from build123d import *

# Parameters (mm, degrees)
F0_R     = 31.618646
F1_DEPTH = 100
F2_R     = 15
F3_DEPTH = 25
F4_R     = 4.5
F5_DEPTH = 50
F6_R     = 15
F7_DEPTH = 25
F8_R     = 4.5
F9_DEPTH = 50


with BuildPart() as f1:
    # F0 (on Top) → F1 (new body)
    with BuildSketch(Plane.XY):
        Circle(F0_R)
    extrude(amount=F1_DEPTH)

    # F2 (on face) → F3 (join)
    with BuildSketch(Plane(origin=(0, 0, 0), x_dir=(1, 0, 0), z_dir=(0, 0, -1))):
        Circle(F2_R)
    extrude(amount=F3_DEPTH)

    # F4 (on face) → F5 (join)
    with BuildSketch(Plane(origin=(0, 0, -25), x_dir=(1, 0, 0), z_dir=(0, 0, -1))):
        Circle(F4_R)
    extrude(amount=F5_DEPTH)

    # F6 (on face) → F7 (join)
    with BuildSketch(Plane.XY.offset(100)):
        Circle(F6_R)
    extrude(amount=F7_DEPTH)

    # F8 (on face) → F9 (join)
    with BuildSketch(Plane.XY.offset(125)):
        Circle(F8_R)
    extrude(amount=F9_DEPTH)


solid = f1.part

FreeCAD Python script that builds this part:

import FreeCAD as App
import Part
import Sketcher
from FreeCAD import Vector

doc = App.newDocument("Part")
body = doc.addObject("PartDesign::Body", "Body")

# Sketch on XY plane
sketch1 = body.newObject("Sketcher::SketchObject", "Sketch")
sketch1.AttachmentSupport = (doc.getObject("XY_Plane"), [""])
sketch1.MapMode = "FlatFace"
sketch1.addGeometry(Part.Circle(Vector(0, 0, 0), Vector(0, 0, 1), 32), False)
sketch1.addConstraint([
    Sketcher.Constraint("Coincident", 0, 3, -1, 1),
    Sketcher.Constraint("Diameter", 0, 63.237292),
])
pad1 = body.newObject("PartDesign::Pad", "Pad")
pad1.Profile = sketch1
pad1.Length = 100

# Sketch on XY plane
sketch2 = body.newObject("Sketcher::SketchObject", "Sketch001")
sketch2.AttachmentSupport = (doc.getObject("XY_Plane"), [""])
sketch2.MapMode = "FlatFace"
sketch2.addGeometry(Part.Circle(Vector(0, 0, 0), Vector(0, 0, 1), 15), False)
sketch2.addConstraint([
    Sketcher.Constraint("Coincident", 0, 3, -1, 1),
    Sketcher.Constraint("Diameter", 0, 30.0),
])
pad2 = body.newObject("PartDesign::Pad", "Pad001")
pad2.Profile = sketch2
pad2.Length = 25
pad2.Reversed = True

# Sketch on XY plane
sketch3 = body.newObject("Sketcher::SketchObject", "Sketch002")
sketch3.AttachmentSupport = (doc.getObject("XY_Plane"), [""])
sketch3.MapMode = "FlatFace"
sketch3.AttachmentOffset = App.Placement(Vector(0, 0, -25), App.Rotation())
sketch3.addGeometry(Part.Circle(Vector(0, 0, 0), Vector(0, 0, 1), 4.5), False)
sketch3.addConstraint([
    Sketcher.Constraint("Coincident", 0, 3, -1, 1),
    Sketcher.Constraint("Diameter", 0, 9.0),
])
pad3 = body.newObject("PartDesign::Pad", "Pad002")
pad3.Profile = sketch3
pad3.Length = 50
pad3.Reversed = True

# Sketch on XY plane
sketch4 = body.newObject("Sketcher::SketchObject", "Sketch003")
sketch4.AttachmentSupport = (doc.getObject("XY_Plane"), [""])
sketch4.MapMode = "FlatFace"
sketch4.AttachmentOffset = App.Placement(Vector(0, 0, 100), App.Rotation())
sketch4.addGeometry(Part.Circle(Vector(0, 0, 0), Vector(0, 0, 1), 15), False)
sketch4.addConstraint([
    Sketcher.Constraint("Coincident", 0, 3, -1, 1),
    Sketcher.Constraint("Diameter", 0, 30.0),
])
pad4 = body.newObject("PartDesign::Pad", "Pad003")
pad4.Profile = sketch4
pad4.Length = 25

# Sketch on XY plane
sketch5 = body.newObject("Sketcher::SketchObject", "Sketch004")
sketch5.AttachmentSupport = (doc.getObject("XY_Plane"), [""])
sketch5.MapMode = "FlatFace"
sketch5.AttachmentOffset = App.Placement(Vector(0, 0, 125), App.Rotation())
sketch5.addGeometry(Part.Circle(Vector(0, 0, 0), Vector(0, 0, 1), 4.5), False)
sketch5.addConstraint([
    Sketcher.Constraint("Coincident", 0, 3, -1, 1),
    Sketcher.Constraint("Diameter", 0, 9.0),
])
pad5 = body.newObject("PartDesign::Pad", "Pad004")
pad5.Profile = sketch5
pad5.Length = 50

doc.recompute()
